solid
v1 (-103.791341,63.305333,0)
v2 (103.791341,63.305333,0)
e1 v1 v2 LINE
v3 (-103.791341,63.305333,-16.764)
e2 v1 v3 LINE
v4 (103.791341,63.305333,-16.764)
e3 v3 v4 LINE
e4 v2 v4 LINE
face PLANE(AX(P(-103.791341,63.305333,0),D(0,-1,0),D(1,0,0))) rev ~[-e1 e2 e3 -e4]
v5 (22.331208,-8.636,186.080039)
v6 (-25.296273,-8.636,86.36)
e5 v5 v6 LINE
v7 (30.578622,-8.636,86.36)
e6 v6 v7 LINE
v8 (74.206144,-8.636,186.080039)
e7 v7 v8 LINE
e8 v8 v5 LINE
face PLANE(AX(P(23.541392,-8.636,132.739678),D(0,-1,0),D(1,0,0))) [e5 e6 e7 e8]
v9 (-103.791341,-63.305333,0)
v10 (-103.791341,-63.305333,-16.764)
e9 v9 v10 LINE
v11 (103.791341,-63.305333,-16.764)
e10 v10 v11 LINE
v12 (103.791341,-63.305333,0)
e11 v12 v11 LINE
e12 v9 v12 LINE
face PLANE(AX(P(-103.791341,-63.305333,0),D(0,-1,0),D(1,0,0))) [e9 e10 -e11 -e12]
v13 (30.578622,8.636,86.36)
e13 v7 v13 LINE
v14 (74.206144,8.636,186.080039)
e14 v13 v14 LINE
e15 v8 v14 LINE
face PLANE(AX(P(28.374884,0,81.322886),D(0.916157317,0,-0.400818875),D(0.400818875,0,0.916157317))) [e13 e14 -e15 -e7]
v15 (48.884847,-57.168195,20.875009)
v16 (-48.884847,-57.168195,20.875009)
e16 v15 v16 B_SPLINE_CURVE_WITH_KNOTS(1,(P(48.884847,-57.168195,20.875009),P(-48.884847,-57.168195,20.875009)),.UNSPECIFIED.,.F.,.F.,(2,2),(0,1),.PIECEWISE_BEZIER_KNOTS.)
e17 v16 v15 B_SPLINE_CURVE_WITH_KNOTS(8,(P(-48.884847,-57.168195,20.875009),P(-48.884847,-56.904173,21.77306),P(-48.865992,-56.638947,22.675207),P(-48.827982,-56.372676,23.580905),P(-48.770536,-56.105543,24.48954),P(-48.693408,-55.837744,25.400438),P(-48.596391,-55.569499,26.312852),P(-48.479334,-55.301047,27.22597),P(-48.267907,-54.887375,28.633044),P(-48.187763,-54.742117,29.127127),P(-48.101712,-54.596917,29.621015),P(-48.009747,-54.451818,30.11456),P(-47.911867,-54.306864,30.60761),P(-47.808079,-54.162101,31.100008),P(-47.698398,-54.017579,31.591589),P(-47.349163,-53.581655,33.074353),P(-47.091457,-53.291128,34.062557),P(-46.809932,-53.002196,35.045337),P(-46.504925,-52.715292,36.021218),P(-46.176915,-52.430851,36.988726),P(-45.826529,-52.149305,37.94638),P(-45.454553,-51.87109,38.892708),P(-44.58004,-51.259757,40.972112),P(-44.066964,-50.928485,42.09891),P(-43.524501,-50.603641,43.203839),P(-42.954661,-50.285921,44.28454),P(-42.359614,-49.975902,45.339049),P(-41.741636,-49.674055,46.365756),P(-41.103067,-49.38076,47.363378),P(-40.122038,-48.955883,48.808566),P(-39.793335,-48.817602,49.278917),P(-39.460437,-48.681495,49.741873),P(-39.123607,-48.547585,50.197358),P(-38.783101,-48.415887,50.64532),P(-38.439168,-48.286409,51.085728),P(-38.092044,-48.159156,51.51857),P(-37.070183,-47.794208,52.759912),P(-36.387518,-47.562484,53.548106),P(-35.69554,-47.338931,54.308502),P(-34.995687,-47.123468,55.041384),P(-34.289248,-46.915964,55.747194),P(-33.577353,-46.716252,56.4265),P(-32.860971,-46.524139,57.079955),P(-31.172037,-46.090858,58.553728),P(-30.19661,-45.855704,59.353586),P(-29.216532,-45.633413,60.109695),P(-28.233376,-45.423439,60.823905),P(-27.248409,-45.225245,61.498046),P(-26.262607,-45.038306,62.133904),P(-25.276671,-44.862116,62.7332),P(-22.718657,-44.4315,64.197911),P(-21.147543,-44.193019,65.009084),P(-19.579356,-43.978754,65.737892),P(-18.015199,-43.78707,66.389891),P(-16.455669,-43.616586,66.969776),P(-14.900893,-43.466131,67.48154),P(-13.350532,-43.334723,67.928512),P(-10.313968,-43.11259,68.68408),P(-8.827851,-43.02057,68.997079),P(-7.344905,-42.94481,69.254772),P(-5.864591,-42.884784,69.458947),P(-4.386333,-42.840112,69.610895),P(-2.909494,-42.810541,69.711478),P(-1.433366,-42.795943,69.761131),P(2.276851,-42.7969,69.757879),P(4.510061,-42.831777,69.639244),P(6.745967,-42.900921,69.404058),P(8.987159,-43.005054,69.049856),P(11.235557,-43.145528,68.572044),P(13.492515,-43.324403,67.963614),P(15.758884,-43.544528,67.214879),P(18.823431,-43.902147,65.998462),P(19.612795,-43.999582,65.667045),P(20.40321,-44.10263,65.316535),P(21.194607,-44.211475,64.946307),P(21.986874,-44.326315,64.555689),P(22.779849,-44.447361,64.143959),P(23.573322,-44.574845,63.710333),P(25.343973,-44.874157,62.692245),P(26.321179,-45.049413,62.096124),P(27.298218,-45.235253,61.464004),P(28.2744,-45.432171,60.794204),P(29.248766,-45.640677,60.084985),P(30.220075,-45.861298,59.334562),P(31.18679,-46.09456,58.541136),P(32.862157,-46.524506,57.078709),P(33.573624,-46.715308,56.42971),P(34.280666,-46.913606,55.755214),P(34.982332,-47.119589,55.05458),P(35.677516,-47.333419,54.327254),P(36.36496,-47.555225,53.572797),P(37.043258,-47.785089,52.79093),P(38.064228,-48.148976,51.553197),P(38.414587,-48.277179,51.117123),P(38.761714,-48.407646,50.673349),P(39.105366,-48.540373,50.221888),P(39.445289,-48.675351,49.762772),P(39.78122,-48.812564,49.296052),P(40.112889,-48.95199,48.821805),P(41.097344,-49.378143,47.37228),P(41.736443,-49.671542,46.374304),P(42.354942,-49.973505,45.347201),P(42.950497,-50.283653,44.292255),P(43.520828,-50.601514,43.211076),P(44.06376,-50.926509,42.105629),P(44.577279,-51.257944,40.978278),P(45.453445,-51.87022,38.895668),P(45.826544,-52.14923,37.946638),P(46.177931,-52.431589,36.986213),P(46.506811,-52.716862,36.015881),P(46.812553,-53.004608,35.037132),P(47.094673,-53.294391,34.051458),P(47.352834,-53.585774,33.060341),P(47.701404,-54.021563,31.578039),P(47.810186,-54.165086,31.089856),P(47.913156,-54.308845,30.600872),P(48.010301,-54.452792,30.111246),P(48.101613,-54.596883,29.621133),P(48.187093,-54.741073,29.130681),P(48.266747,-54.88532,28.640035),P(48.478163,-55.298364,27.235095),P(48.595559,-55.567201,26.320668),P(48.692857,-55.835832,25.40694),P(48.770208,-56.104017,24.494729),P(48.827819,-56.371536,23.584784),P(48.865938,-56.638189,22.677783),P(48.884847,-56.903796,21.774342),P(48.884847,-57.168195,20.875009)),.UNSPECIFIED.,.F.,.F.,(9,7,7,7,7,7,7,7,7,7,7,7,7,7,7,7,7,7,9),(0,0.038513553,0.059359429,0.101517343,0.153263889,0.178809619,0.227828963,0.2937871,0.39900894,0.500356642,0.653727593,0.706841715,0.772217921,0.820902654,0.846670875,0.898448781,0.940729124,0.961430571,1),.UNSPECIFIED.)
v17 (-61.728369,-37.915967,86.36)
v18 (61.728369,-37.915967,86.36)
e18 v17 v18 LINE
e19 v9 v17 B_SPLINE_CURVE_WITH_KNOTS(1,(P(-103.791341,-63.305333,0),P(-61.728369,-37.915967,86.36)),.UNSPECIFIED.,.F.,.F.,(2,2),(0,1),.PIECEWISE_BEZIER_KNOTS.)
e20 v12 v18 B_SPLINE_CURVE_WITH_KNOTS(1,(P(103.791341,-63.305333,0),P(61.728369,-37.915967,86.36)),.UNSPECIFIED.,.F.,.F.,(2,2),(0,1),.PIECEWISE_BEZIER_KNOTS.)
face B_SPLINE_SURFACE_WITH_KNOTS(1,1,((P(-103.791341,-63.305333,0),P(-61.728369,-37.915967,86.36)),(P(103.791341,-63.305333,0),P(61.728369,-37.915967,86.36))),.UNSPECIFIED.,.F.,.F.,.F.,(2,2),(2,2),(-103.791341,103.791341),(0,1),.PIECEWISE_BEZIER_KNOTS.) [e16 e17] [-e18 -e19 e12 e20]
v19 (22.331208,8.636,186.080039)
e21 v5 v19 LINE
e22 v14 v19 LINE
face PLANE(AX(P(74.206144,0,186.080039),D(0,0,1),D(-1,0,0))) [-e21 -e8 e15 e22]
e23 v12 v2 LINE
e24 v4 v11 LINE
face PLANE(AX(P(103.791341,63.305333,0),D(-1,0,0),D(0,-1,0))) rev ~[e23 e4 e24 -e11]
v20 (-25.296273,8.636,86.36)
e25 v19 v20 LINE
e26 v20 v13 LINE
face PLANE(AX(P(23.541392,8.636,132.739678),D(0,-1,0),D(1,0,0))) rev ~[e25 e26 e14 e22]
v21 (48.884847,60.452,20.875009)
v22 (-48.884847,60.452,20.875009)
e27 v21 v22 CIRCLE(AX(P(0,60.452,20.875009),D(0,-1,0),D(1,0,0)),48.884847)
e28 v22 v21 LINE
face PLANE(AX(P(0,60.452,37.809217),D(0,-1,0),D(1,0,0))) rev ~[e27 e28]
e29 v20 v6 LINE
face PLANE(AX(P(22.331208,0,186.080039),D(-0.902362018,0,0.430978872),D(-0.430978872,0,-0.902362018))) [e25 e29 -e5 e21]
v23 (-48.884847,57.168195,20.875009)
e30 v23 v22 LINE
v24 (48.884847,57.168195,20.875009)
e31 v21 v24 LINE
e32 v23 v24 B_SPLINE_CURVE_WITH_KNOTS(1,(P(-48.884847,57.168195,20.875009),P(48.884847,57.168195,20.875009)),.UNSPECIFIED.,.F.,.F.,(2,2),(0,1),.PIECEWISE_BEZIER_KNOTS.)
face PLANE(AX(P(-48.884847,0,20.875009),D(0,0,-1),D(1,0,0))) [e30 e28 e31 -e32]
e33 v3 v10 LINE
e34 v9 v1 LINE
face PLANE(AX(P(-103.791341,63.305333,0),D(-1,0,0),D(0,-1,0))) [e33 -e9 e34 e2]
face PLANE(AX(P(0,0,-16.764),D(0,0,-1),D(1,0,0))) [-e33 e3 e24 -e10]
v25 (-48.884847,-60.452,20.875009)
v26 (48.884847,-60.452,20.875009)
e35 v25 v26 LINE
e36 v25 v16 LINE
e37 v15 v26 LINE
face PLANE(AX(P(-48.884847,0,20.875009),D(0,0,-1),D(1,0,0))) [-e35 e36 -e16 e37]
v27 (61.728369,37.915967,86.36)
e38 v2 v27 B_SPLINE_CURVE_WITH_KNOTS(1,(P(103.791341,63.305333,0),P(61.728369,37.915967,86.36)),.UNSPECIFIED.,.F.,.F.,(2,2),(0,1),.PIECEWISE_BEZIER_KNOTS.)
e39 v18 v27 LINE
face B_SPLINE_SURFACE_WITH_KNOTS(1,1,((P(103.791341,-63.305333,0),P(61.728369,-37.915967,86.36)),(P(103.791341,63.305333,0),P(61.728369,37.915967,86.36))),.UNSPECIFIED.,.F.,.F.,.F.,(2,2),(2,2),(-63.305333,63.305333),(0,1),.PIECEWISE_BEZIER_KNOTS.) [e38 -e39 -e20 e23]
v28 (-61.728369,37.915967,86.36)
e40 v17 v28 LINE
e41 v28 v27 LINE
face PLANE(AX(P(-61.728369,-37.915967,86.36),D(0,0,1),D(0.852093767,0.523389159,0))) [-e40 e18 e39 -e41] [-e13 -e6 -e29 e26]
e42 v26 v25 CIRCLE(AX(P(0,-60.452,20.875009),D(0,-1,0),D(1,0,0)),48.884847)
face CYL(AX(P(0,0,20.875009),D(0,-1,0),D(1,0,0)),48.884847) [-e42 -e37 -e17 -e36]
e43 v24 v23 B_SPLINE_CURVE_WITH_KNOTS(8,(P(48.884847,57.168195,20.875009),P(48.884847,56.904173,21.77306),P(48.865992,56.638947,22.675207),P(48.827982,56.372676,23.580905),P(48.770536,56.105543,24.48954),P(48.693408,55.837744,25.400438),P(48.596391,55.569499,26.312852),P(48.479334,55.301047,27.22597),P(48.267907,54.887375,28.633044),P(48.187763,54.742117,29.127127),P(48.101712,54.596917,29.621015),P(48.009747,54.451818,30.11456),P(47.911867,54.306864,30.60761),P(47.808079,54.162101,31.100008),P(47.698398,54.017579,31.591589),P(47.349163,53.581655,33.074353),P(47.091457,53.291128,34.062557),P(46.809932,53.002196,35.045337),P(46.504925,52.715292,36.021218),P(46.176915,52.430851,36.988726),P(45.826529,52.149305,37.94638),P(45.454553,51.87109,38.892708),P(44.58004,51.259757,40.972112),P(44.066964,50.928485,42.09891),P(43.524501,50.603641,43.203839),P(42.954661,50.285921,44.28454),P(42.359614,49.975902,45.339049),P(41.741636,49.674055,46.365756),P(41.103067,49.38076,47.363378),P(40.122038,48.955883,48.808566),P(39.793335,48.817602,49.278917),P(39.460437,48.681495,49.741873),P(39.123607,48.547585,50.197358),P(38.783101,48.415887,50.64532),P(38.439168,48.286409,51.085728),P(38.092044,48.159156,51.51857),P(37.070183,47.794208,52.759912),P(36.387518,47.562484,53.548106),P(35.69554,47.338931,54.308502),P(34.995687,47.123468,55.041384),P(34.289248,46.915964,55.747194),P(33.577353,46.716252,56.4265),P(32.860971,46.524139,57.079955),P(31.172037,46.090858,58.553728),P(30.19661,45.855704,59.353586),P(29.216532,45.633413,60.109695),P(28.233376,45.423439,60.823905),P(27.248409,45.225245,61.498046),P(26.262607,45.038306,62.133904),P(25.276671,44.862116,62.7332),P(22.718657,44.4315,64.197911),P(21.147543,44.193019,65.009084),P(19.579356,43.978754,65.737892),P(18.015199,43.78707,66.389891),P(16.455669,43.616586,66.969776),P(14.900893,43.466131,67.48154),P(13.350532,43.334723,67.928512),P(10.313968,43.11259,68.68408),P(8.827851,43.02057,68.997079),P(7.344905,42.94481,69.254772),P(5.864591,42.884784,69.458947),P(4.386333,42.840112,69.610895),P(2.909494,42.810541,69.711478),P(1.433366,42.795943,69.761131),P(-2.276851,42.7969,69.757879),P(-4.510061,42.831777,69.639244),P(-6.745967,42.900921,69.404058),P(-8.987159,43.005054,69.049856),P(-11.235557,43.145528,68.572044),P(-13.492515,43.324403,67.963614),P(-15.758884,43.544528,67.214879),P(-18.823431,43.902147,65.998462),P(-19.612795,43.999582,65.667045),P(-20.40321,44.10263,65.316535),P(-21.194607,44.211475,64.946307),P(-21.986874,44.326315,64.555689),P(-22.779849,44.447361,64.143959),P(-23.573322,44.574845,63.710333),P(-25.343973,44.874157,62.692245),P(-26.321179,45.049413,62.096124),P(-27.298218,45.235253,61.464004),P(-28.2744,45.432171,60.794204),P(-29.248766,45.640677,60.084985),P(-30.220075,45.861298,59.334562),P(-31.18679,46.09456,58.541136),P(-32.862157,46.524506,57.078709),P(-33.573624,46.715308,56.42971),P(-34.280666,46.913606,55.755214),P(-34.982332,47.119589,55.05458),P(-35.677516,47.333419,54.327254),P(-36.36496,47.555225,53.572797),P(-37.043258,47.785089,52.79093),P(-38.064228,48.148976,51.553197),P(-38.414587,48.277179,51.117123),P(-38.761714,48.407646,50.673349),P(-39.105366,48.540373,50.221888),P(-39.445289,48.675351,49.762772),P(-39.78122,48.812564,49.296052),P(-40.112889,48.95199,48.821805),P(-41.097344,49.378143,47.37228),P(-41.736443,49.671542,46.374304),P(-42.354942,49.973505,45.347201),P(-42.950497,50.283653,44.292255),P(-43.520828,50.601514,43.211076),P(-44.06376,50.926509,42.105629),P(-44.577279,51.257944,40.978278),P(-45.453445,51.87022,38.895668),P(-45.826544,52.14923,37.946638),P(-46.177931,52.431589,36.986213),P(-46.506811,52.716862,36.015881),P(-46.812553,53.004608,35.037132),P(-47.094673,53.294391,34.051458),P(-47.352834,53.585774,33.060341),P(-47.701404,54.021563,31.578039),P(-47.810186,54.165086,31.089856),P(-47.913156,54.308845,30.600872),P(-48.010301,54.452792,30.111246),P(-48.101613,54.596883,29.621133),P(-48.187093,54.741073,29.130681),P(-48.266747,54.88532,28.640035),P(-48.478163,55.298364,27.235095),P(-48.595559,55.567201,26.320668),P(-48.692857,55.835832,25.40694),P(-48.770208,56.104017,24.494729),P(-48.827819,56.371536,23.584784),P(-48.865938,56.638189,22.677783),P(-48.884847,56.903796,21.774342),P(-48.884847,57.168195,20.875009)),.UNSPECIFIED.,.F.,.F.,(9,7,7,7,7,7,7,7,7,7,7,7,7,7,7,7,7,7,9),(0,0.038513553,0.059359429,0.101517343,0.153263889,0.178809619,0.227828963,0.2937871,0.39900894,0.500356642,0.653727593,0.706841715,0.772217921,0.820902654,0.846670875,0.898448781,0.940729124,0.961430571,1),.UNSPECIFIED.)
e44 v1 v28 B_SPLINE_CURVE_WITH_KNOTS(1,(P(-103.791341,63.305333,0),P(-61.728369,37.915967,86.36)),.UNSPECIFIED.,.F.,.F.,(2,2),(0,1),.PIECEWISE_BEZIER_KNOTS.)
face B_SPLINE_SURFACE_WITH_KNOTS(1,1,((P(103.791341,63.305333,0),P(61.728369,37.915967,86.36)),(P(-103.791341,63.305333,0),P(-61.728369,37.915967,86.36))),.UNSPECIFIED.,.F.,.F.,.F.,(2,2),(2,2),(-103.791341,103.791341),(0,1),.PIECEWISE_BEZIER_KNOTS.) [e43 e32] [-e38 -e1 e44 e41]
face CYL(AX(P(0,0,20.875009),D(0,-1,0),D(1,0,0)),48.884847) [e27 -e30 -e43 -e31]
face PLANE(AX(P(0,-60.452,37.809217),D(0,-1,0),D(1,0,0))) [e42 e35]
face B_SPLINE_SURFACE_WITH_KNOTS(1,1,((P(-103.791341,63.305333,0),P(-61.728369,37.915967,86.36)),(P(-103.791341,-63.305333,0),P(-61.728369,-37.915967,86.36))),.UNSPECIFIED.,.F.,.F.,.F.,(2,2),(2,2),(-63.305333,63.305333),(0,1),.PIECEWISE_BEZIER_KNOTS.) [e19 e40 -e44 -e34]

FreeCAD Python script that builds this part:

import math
import FreeCAD as App
import Part
import Sketcher
Q = App.Units.Quantity


def add_polygon(sketch, points):
    """Adds a closed chain of lines whose ends are joined by coincident constraints."""
    first, n = sketch.GeometryCount, len(points)
    for a, b in zip(points, points[1:] + points[:1]):
        sketch.addGeometry(Part.LineSegment(App.Vector(*a, 0), App.Vector(*b, 0)), False)
    for i in range(n):
        sketch.addConstraint(Sketcher.Constraint("Coincident", first + i, 2, first + (i + 1) % n, 1))

doc = App.newDocument("Part")
body = doc.addObject("PartDesign::Body", "Body")

# Sketch on XY plane
sketch1 = doc.addObject("Sketcher::SketchObject", "Sketch")
body.addObject(sketch1)
sketch1.AttachmentSupport = (doc.XY_Plane, [""])
sketch1.MapMode = "FlatFace"
add_polygon(sketch1, [(-104, 63), (-104, -63), (104, -63), (104, 63)])  # lines 0-3
sketch1.addConstraint([
    Sketcher.Constraint("Vertical", 0),
    Sketcher.Constraint("Horizontal", 1),
    Sketcher.Constraint("Vertical", 2),
    Sketcher.Constraint("Horizontal", 3),
    Sketcher.Constraint("Symmetric", 0, 2, 2, 2, -1, 1),
    Sketcher.Constraint("DistanceX", 1, 1, 1, 2, Q("207.582682 mm")),
    Sketcher.Constraint("DistanceY", 0, 2, 0, 1, Q("126.610666 mm")),
])

# Sketch on XY plane
sketch2 = doc.addObject("Sketcher::SketchObject", "Sketch001")
body.addObject(sketch2)
sketch2.AttachmentSupport = (doc.XY_Plane, [""])
sketch2.MapMode = "FlatFace"
sketch2.AttachmentOffset = App.Placement(App.Vector(0, 0, 3.4 * 25.4), App.Rotation())
add_polygon(sketch2, [(-62, 38), (-62, -38), (62, -38), (62, 38)])  # lines 0-3
sketch2.addConstraint([
    Sketcher.Constraint("Vertical", 0),
    Sketcher.Constraint("Horizontal", 1),
    Sketcher.Constraint("Vertical", 2),
    Sketcher.Constraint("Horizontal", 3),
    Sketcher.Constraint("Symmetric", 0, 2, 2, 2, -1, 1),
    Sketcher.Constraint("DistanceX", 1, 1, 1, 2, Q("123.456738 mm")),
    Sketcher.Constraint("DistanceY", 0, 2, 0, 1, Q("75.831934 mm")),
])

additiveloft = doc.addObject("PartDesign::AdditiveLoft", "AdditiveLoft")
body.addObject(additiveloft)
additiveloft.Profile = sketch1
additiveloft.Sections = [sketch2]

# Sketch on XZ plane
sketch3 = doc.addObject("Sketcher::SketchObject", "Sketch002")
body.addObject(sketch3)
sketch3.AttachmentSupport = (doc.XZ_Plane, [""])
sketch3.MapMode = "FlatFace"
sketch3.addGeometry([
    Part.LineSegment(App.Vector(-49, 21, 0), App.Vector(49, 21, 0)),
    Part.ArcOfCircle(Part.Circle(App.Vector(0, 21, 0), App.Vector(0, 0, 1), 49), math.radians(0), math.radians(180)),
], False)
sketch3.addConstraint([
    Sketcher.Constraint("Coincident", 0, 1, 1, 2),
    Sketcher.Constraint("Coincident", 1, 1, 0, 2),
    Sketcher.Constraint("Horizontal", 0),
    Sketcher.Constraint("PointOnObject", 1, 3, -2),
    Sketcher.Constraint("Horizontal", 1, 3, 0, 1),
    Sketcher.Constraint("Radius", 1, Q("48.884847 mm")),
    Sketcher.Constraint("DistanceY", -1, 1, 1, 3, Q("20.875009 mm")),
])
pad1 = doc.addObject("PartDesign::Pad", "Pad")
body.addObject(pad1)
pad1.Profile = sketch3
pad1.Length = Q("4.76 in")
pad1.Midplane = True

# Sketch on XY plane
sketch4 = doc.addObject("Sketcher::SketchObject", "Sketch003")
body.addObject(sketch4)
sketch4.AttachmentSupport = (doc.XY_Plane, [""])
sketch4.MapMode = "FlatFace"
add_polygon(sketch4, [(-104, -63), (-104, 63), (104, 63), (104, -63)])  # lines 0-3
sketch4.addConstraint([
    Sketcher.Constraint("Vertical", 0),
    Sketcher.Constraint("Horizontal", 1),
    Sketcher.Constraint("Vertical", 2),
    Sketcher.Constraint("Horizontal", 3),
    Sketcher.Constraint("Symmetric", 0, 2, 2, 2, -1, 1),
    Sketcher.Constraint("DistanceX", 1, 1, 1, 2, Q("207.582682 mm")),
    Sketcher.Constraint("DistanceY", 0, 1, 0, 2, Q("126.610666 mm")),
])
pad2 = doc.addObject("PartDesign::Pad", "Pad001")
body.addObject(pad2)
pad2.Profile = sketch4
pad2.Length = Q("0.66 in")
pad2.Reversed = True

# Sketch on XZ plane
sketch5 = doc.addObject("Sketcher::SketchObject", "Sketch004")
body.addObject(sketch5)
sketch5.AttachmentSupport = (doc.XZ_Plane, [""])
sketch5.MapMode = "FlatFace"
add_polygon(sketch5, [(22.3, 186.1), (-26, 84.8), (-29, 81.3), (28.4, 81.3), (74.2, 186.1)])  # lines 0-4
sketch5.addConstraint([
    Sketcher.Constraint("Horizontal", 2),
    Sketcher.Constraint("Horizontal", 4),
    Sketcher.Constraint("DistanceX", 2, 1, 2, 2, Q("57.414969 mm")),
    Sketcher.Constraint("Distance", 0, Q("112.185209 mm")),
    Sketcher.Constraint("Distance", 1, Q("4.643331 mm")),
    Sketcher.Constraint("DistanceX", 4, 2, 4, 1, Q("51.874936 mm")),
    Sketcher.Constraint("DistanceY", -1, 1, 3, 2, Q("186.080039 mm")),
    Sketcher.Constraint("DistanceX", -1, 1, 4, 2, Q("22.331208 mm")),
    Sketcher.Constraint("DistanceX", 1, 2, 0, 2, Q("3.021838 mm")),
    Sketcher.Constraint("DistanceX", 2, 2, 3, 2, Q("45.83126 mm")),
])
pad3 = doc.addObject("PartDesign::Pad", "Pad002")
body.addObject(pad3)
pad3.Profile = sketch5
pad3.Length = Q("0.68 in")
pad3.Midplane = True

doc.recompute()
